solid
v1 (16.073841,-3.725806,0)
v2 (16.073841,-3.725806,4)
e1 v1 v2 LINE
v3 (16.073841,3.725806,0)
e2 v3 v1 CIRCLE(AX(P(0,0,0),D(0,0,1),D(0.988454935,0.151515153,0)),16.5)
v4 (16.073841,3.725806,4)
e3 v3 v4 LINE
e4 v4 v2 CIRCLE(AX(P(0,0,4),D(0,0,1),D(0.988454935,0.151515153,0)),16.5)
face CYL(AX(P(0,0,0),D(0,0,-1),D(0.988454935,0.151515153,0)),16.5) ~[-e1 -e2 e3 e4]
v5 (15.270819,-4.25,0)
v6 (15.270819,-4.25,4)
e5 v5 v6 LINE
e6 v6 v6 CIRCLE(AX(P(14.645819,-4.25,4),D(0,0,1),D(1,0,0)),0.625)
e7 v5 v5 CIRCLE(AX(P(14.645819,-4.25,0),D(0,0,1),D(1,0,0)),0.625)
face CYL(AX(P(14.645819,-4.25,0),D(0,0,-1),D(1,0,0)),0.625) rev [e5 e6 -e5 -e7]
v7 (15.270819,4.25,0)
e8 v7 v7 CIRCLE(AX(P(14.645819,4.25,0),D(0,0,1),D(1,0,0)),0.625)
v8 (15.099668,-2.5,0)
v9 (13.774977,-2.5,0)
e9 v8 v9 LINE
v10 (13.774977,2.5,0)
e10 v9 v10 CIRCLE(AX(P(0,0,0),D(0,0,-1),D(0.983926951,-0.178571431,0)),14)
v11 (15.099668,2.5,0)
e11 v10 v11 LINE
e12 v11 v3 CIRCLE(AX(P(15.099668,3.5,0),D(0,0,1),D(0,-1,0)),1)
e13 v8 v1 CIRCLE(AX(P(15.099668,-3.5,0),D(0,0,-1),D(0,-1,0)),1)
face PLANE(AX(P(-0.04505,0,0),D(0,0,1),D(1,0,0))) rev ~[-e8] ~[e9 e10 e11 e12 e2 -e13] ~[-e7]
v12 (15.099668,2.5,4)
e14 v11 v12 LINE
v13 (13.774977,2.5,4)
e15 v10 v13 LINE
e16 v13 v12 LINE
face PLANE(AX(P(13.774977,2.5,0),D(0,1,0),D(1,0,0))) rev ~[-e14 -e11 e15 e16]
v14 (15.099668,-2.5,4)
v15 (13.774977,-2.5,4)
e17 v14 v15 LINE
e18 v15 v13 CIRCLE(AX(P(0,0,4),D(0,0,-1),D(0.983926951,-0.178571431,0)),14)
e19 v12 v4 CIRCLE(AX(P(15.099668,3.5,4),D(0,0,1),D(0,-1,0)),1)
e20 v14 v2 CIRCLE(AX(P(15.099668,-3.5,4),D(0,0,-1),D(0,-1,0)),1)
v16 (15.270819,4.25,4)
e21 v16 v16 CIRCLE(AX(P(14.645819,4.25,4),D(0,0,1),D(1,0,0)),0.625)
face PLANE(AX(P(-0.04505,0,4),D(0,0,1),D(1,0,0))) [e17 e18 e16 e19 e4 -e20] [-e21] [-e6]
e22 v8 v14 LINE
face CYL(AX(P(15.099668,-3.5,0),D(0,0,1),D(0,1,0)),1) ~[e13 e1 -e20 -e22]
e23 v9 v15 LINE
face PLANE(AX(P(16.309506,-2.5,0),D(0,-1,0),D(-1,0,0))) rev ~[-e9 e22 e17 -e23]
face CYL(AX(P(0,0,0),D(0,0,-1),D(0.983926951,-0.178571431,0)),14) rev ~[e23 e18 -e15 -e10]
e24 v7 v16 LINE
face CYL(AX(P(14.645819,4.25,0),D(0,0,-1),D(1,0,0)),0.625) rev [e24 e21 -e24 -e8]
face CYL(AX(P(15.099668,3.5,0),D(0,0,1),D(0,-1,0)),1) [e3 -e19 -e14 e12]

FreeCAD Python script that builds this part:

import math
import FreeCAD as App
import Part
import Sketcher
from FreeCAD import Vector


def edges_at(feature, points):
    """Names of the edges that pass closest to the given points."""
    edges = feature.Shape.Edges
    near = lambda p: min(range(len(edges)), key=lambda i: edges[i].distToShape(Part.Vertex(*p))[0])
    return sorted({f"Edge{near(p) + 1}" for p in points})

doc = App.newDocument("Part")
params = doc.addObject("Spreadsheet::Sheet", "Params")
for row, (alias, value) in enumerate([
    ("sketch1_radius", "14 mm"),
    ("sketch1_radius2", "16.5 mm"),
    ("sketch1_diameter", "1.25 mm"),
    ("pad1_length", "4 mm"),
    ("fillet_radius", "1 mm"),
], start=1):
    params.set(f"A{row}", alias)
    params.set(f"B{row}", "=" + value)
    params.setAlias(f"B{row}", alias)

body = doc.addObject("PartDesign::Body", "Body")

sketch1 = doc.addObject("Sketcher::SketchObject", "Sketch")
body.addObject(sketch1)
sketch1.AttachmentSupport = (doc.XY_Plane, [""])
sketch1.MapMode = "FlatFace"
sketch1.addGeometry([
    Part.ArcOfCircle(Part.Circle(Vector(0, 0, 0), Vector(0, 0, 1), 14), math.radians(10), math.radians(350)),
    Part.LineSegment(Vector(13.8, 2.5, 0), Vector(16.3, 2.5, 0)),
    Part.ArcOfCircle(Part.Circle(Vector(0, 0, 0), Vector(0, 0, 1), 16.5), math.radians(9), math.radians(351)),
    Part.LineSegment(Vector(16.3, -2.5, 0), Vector(13.8, -2.5, 0)),
    Part.Circle(Vector(14.6, -4.2, 0), Vector(0, 0, 1), 0.6),
    Part.Circle(Vector(14.6, 4.2, 0), Vector(0, 0, 1), 0.6),
], False)
sketch1.addConstraint([
    Sketcher.Constraint("Coincident", 0, 1, 1, 1),
    Sketcher.Constraint("Coincident", 1, 2, 2, 1),
    Sketcher.Constraint("Coincident", 2, 2, 3, 1),
    Sketcher.Constraint("Coincident", 3, 2, 0, 2),
    Sketcher.Constraint("Horizontal", 1),
    Sketcher.Constraint("Horizontal", 3),
    Sketcher.Constraint("Coincident", 0, 3, -1, 1),
    Sketcher.Constraint("Coincident", 2, 3, -1, 1),
    Sketcher.Constraint("Equal", 4, 5),
    Sketcher.Constraint("Symmetric", 4, 3, 5, 3, -1),
    Sketcher.Constraint("Vertical", 1, 2, 2, 2),
    Sketcher.Constraint("Radius", 0, 14.0),
    Sketcher.Constraint("Radius", 2, 16.5),
    Sketcher.Constraint("Diameter", 4, 1.25),
    Sketcher.Constraint("DistanceY", 2, 2, 1, 2, 5.0),
    Sketcher.Constraint("DistanceY", 4, 3, 5, 3, 8.5),
    Sketcher.Constraint("DistanceX", -1, 1, 4, 3, 14.645819),
])
sketch1.setExpression("Constraints[11]", "Params.sketch1_radius")
sketch1.setExpression("Constraints[12]", "Params.sketch1_radius2")
sketch1.setExpression("Constraints[13]", "Params.sketch1_diameter")
pad1 = doc.addObject("PartDesign::Pad", "Pad")
body.addObject(pad1)
pad1.Profile = sketch1
pad1.setExpression("Length", "Params.pad1_length")
doc.recompute()

fillet = doc.addObject("PartDesign::Fillet", "Fillet")
body.addObject(fillet)
fillet.Base = (pad1, edges_at(pad1, [(16.31, 2.5, 2), (16.31, -2.5, 2)]))
fillet.setExpression("Radius", "Params.fillet_radius")

doc.recompute()
